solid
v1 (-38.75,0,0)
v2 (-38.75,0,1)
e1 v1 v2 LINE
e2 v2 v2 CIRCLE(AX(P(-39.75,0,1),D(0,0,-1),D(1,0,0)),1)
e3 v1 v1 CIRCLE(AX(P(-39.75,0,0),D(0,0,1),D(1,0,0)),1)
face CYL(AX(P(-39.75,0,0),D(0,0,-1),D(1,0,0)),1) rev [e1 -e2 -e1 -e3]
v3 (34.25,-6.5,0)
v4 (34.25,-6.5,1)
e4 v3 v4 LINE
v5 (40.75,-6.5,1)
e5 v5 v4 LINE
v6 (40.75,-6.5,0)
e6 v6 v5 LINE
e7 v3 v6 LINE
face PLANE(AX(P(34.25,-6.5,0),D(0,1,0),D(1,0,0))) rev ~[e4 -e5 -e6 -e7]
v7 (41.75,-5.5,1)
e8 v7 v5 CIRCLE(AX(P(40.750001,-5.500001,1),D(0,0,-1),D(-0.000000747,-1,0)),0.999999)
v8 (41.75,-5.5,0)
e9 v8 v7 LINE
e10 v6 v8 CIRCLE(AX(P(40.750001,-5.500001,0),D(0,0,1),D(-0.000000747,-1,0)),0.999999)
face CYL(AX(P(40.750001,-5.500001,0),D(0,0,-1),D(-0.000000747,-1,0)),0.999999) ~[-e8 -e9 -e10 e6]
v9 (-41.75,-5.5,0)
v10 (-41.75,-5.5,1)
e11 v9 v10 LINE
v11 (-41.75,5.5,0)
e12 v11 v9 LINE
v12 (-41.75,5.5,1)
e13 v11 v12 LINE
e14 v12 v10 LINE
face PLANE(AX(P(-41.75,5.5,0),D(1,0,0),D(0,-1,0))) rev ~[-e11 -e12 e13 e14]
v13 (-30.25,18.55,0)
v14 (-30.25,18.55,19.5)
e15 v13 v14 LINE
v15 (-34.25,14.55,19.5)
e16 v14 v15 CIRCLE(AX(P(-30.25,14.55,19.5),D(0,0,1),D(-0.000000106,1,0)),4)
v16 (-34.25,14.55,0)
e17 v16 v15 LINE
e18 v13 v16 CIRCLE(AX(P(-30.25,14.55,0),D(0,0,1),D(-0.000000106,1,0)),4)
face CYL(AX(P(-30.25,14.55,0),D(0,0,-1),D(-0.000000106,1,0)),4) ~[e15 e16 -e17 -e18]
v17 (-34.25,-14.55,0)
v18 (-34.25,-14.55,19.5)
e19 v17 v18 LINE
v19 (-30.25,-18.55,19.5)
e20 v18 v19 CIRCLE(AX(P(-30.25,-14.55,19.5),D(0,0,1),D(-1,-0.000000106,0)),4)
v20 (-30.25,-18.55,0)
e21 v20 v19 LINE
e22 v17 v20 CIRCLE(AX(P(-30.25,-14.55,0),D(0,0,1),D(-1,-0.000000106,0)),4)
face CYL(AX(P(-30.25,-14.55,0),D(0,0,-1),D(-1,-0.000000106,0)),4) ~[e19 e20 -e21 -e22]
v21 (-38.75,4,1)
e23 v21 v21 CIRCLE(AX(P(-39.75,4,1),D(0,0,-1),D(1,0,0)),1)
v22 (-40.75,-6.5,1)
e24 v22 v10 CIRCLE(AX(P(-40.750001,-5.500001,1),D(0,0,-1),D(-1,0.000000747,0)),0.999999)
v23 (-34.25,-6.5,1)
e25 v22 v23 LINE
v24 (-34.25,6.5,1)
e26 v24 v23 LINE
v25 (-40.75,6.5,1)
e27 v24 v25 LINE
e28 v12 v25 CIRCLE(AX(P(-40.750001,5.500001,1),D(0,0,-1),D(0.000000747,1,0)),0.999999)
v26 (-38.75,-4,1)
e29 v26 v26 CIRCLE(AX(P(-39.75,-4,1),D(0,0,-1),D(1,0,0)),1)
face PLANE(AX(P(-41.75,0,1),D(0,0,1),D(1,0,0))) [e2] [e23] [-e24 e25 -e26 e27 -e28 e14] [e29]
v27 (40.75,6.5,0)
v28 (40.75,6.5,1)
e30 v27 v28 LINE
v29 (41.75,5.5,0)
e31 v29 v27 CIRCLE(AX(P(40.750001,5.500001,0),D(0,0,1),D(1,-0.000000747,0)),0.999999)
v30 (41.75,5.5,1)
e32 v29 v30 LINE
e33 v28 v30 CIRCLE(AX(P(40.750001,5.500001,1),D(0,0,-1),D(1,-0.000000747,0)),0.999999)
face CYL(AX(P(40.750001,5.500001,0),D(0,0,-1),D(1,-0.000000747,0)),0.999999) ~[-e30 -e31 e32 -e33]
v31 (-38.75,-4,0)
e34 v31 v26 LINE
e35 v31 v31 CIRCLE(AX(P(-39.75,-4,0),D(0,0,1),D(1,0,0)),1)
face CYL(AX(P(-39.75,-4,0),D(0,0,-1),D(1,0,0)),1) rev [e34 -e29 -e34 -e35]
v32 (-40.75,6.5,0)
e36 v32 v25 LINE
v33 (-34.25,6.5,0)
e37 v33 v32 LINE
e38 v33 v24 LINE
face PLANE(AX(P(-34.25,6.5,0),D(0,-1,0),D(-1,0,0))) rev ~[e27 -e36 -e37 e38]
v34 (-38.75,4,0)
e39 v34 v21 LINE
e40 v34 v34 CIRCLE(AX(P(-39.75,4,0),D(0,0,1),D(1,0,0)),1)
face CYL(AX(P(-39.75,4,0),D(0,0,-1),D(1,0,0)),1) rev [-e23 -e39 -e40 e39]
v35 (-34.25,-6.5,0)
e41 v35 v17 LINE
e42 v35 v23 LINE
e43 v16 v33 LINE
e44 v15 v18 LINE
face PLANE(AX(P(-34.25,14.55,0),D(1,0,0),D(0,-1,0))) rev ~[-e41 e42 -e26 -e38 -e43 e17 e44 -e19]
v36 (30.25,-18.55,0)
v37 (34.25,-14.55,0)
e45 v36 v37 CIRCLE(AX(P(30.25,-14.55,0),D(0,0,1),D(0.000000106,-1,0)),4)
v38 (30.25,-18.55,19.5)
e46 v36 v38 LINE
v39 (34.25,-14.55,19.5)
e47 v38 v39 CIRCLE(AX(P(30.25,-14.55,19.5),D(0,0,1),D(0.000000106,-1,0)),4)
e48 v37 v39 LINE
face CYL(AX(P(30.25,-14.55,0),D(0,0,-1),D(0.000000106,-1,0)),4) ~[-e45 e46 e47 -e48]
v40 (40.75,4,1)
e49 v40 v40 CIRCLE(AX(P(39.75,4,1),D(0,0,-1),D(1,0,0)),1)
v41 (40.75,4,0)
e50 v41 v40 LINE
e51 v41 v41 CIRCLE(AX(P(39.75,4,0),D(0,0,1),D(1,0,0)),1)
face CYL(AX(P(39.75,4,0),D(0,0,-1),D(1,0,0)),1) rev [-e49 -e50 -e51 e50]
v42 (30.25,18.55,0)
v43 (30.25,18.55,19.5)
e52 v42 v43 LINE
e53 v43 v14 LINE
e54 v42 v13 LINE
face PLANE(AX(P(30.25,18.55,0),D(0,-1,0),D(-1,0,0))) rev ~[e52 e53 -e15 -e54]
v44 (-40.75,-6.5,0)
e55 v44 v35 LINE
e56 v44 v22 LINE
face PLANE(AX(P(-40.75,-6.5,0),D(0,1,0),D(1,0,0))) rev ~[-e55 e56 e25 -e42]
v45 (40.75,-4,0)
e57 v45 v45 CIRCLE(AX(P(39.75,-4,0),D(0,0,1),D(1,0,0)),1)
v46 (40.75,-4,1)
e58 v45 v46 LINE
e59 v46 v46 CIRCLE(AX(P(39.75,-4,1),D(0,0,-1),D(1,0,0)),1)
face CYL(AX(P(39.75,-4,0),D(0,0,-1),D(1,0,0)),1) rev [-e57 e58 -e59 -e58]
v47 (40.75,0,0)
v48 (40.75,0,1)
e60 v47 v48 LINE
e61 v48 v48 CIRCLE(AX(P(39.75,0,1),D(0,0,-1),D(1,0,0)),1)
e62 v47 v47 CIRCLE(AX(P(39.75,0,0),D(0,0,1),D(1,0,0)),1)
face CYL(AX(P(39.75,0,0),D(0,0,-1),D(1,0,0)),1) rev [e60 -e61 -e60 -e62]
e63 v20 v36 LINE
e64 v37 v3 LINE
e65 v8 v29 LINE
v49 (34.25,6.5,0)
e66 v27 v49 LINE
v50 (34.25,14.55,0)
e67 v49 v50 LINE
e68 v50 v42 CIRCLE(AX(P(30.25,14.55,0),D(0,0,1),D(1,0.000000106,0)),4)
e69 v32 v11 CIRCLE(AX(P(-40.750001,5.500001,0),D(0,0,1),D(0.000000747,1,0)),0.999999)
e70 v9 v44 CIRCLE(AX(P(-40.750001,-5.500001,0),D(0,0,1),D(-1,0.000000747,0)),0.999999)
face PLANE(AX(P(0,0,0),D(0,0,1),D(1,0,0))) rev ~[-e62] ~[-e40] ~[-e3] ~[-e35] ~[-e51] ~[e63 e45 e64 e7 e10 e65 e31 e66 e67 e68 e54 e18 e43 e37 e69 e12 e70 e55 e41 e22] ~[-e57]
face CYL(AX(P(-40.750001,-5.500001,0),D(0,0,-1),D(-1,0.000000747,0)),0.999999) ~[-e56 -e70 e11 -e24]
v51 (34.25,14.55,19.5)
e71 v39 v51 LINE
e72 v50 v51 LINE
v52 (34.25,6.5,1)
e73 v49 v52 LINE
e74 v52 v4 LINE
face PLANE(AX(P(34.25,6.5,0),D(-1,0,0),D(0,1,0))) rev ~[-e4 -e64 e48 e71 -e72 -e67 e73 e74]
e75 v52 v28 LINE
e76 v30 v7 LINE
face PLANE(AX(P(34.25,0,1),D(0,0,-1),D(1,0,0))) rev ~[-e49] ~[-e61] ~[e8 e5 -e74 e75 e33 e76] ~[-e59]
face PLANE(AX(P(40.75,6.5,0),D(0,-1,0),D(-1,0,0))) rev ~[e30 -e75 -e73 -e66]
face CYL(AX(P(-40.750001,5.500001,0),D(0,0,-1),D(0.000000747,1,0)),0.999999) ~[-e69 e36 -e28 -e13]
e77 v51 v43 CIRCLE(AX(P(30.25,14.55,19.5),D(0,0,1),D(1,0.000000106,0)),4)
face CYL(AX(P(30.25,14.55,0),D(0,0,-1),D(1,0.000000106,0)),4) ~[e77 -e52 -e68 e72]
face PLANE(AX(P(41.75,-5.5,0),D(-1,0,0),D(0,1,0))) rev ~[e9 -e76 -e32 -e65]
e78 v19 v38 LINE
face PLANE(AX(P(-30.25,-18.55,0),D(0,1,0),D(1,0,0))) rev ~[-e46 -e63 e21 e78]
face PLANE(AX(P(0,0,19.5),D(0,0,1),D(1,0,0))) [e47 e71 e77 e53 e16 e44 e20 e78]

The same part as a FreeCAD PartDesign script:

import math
import FreeCAD as App
import Part
import Sketcher
Q = App.Units.Quantity


def add_polygon(sketch, points):
    """Adds a closed chain of lines whose ends are joined by coincident constraints."""
    first, n = sketch.GeometryCount, len(points)
    for a, b in zip(points, points[1:] + points[:1]):
        sketch.addGeometry(Part.LineSegment(App.Vector(*a, 0), App.Vector(*b, 0)), False)
    for i in range(n):
        sketch.addConstraint(Sketcher.Constraint("Coincident", first + i, 2, first + (i + 1) % n, 1))

doc = App.newDocument("Part")
body = doc.addObject("PartDesign::Body", "Body")

sketch1 = doc.addObject("Sketcher::SketchObject", "Sketch")
body.addObject(sketch1)
sketch1.AttachmentSupport = (doc.XY_Plane, [""])
sketch1.MapMode = "FlatFace"
sketch1.addGeometry(Part.LineSegment(App.Vector(30.2, 18.6, 0), App.Vector(-30.2, 18.6, 0)), False)
sketch1.addGeometry(Part.ArcOfCircle(Part.Circle(App.Vector(-30.2, 14.5, 0), App.Vector(0, 0, 1), 4), math.radians(90), math.radians(180)), False)
sketch1.addGeometry(Part.LineSegment(App.Vector(-34.2, 14.6, 0), App.Vector(-34.2, 6.5, 0)), False)
sketch1.addGeometry(Part.LineSegment(App.Vector(-34.2, 6.5, 0), App.Vector(-40.8, 6.5, 0)), False)
sketch1.addGeometry(Part.ArcOfCircle(Part.Circle(App.Vector(-40.8, 5.5, 0), App.Vector(0, 0, 1), 1), math.radians(90), math.radians(180)), False)
sketch1.addGeometry(Part.LineSegment(App.Vector(-41.8, 5.5, 0), App.Vector(-41.8, -5.5, 0)), False)
sketch1.addGeometry(Part.ArcOfCircle(Part.Circle(App.Vector(-40.8, -5.5, 0), App.Vector(0, 0, 1), 1), math.radians(180), math.radians(270)), False)
sketch1.addGeometry(Part.LineSegment(App.Vector(-40.8, -6.5, 0), App.Vector(-34.2, -6.5, 0)), False)
sketch1.addGeometry(Part.LineSegment(App.Vector(-34.2, -6.5, 0), App.Vector(-34.2, -14.6, 0)), False)
sketch1.addGeometry(Part.ArcOfCircle(Part.Circle(App.Vector(-30.2, -14.5, 0), App.Vector(0, 0, 1), 4), math.radians(-180), math.radians(-90)), False)
sketch1.addGeometry(Part.LineSegment(App.Vector(-30.2, -18.6, 0), App.Vector(30.2, -18.6, 0)), False)
sketch1.addGeometry(Part.ArcOfCircle(Part.Circle(App.Vector(30.2, -14.5, 0), App.Vector(0, 0, 1), 4), math.radians(-90), math.radians(0)), False)
sketch1.addGeometry(Part.LineSegment(App.Vector(34.2, -14.6, 0), App.Vector(34.2, -6.5, 0)), False)
sketch1.addGeometry(Part.LineSegment(App.Vector(34.2, -6.5, 0), App.Vector(40.8, -6.5, 0)), False)
sketch1.addGeometry(Part.ArcOfCircle(Part.Circle(App.Vector(40.8, -5.5, 0), App.Vector(0, 0, 1), 1), math.radians(-90), math.radians(0)), False)
sketch1.addGeometry(Part.LineSegment(App.Vector(41.8, -5.5, 0), App.Vector(41.8, 5.5, 0)), False)
sketch1.addGeometry(Part.ArcOfCircle(Part.Circle(App.Vector(40.8, 5.5, 0), App.Vector(0, 0, 1), 1), math.radians(0), math.radians(90)), False)
sketch1.addGeometry(Part.LineSegment(App.Vector(40.8, 6.5, 0), App.Vector(34.2, 6.5, 0)), False)
sketch1.addGeometry(Part.LineSegment(App.Vector(34.2, 6.5, 0), App.Vector(34.2, 14.6, 0)), False)
sketch1.addGeometry(Part.ArcOfCircle(Part.Circle(App.Vector(30.2, 14.5, 0), App.Vector(0, 0, 1), 4), math.radians(0), math.radians(90)), False)
sketch1.addGeometry(Part.Circle(App.Vector(-39.8, -4, 0), App.Vector(0, 0, 1), 1), False)
sketch1.addGeometry(Part.Circle(App.Vector(39.8, -4, 0), App.Vector(0, 0, 1), 1), False)
sketch1.addGeometry(Part.Circle(App.Vector(-39.8, 0, 0), App.Vector(0, 0, 1), 1), False)
sketch1.addGeometry(Part.Circle(App.Vector(-39.8, 4, 0), App.Vector(0, 0, 1), 1), False)
sketch1.addGeometry(Part.Circle(App.Vector(39.8, 0, 0), App.Vector(0, 0, 1), 1), False)
sketch1.addGeometry(Part.Circle(App.Vector(39.8, 4, 0), App.Vector(0, 0, 1), 1), False)
sketch1.addConstraint(Sketcher.Constraint("Tangent", 0, 2, 1, 1))
sketch1.addConstraint(Sketcher.Constraint("Tangent", 1, 2, 2, 1))
sketch1.addConstraint(Sketcher.Constraint("Coincident", 2, 2, 3, 1))
sketch1.addConstraint(Sketcher.Constraint("Tangent", 3, 2, 4, 1))
sketch1.addConstraint(Sketcher.Constraint("Tangent", 4, 2, 5, 1))
sketch1.addConstraint(Sketcher.Constraint("Tangent", 5, 2, 6, 1))
sketch1.addConstraint(Sketcher.Constraint("Tangent", 6, 2, 7, 1))
sketch1.addConstraint(Sketcher.Constraint("Coincident", 7, 2, 8, 1))
sketch1.addConstraint(Sketcher.Constraint("Tangent", 8, 2, 9, 1))
sketch1.addConstraint(Sketcher.Constraint("Tangent", 9, 2, 10, 1))
sketch1.addConstraint(Sketcher.Constraint("Tangent", 10, 2, 11, 1))
sketch1.addConstraint(Sketcher.Constraint("Tangent", 11, 2, 12, 1))
sketch1.addConstraint(Sketcher.Constraint("Coincident", 12, 2, 13, 1))
sketch1.addConstraint(Sketcher.Constraint("Tangent", 13, 2, 14, 1))
sketch1.addConstraint(Sketcher.Constraint("Tangent", 14, 2, 15, 1))
sketch1.addConstraint(Sketcher.Constraint("Tangent", 15, 2, 16, 1))
sketch1.addConstraint(Sketcher.Constraint("Tangent", 16, 2, 17, 1))
sketch1.addConstraint(Sketcher.Constraint("Coincident", 17, 2, 18, 1))
sketch1.addConstraint(Sketcher.Constraint("Tangent", 18, 2, 19, 1))
sketch1.addConstraint(Sketcher.Constraint("Tangent", 19, 2, 0, 1))
sketch1.addConstraint(Sketcher.Constraint("Horizontal", 0))
sketch1.addConstraint(Sketcher.Constraint("Vertical", 2))
sketch1.addConstraint(Sketcher.Constraint("Horizontal", 3))
sketch1.addConstraint(Sketcher.Constraint("Vertical", 5))
sketch1.addConstraint(Sketcher.Constraint("Horizontal", 7))
sketch1.addConstraint(Sketcher.Constraint("Vertical", 8))
sketch1.addConstraint(Sketcher.Constraint("Horizontal", 10))
sketch1.addConstraint(Sketcher.Constraint("Vertical", 12))
sketch1.addConstraint(Sketcher.Constraint("Horizontal", 13))
sketch1.addConstraint(Sketcher.Constraint("Vertical", 15))
sketch1.addConstraint(Sketcher.Constraint("Horizontal", 17))
sketch1.addConstraint(Sketcher.Constraint("Vertical", 18))
sketch1.addConstraint(Sketcher.Constraint("Equal", 4, 6))
sketch1.addConstraint(Sketcher.Constraint("Equal", 1, 9))
sketch1.addConstraint(Sketcher.Constraint("Equal", 9, 11))
sketch1.addConstraint(Sketcher.Constraint("Equal", 6, 14))
sketch1.addConstraint(Sketcher.Constraint("Equal", 14, 16))
sketch1.addConstraint(Sketcher.Constraint("Equal", 11, 19))
sketch1.addConstraint(Sketcher.Constraint("Equal", 16, 20))
sketch1.addConstraint(Sketcher.Constraint("Equal", 20, 21))
sketch1.addConstraint(Sketcher.Constraint("Equal", 21, 22))
sketch1.addConstraint(Sketcher.Constraint("Equal", 22, 23))
sketch1.addConstraint(Sketcher.Constraint("Equal", 23, 24))
sketch1.addConstraint(Sketcher.Constraint("Equal", 24, 25))
sketch1.addConstraint(Sketcher.Constraint("Symmetric", 1, 3, 11, 3, -1, 1))
sketch1.addConstraint(Sketcher.Constraint("Symmetric", 4, 3, 14, 3, -1, 1))
sketch1.addConstraint(Sketcher.Constraint("Symmetric", 21, 3, 23, 3, -1, 1))
sketch1.addConstraint(Sketcher.Constraint("Symmetric", 22, 3, 24, 3, -1, 1))
sketch1.addConstraint(Sketcher.Constraint("Symmetric", 20, 3, 25, 3, -1, 1))
sketch1.addConstraint(Sketcher.Constraint("Symmetric", 7, 2, 17, 2, -1, 1))
sketch1.addConstraint(Sketcher.Constraint("Symmetric", 20, 3, 21, 3, -2))
sketch1.addConstraint(Sketcher.Constraint("Symmetric", 7, 2, 12, 2, -2))
sketch1.addConstraint(Sketcher.Constraint("PointOnObject", 22, 3, -1))
sketch1.addConstraint(Sketcher.Constraint("Vertical", 20, 3, 22, 3))
sketch1.addConstraint(Sketcher.Constraint("Diameter", 20, Q("2 mm")))
sketch1.addConstraint(Sketcher.Constraint("Radius", 1, Q("4 mm")))
sketch1.addConstraint(Sketcher.Constraint("DistanceY", 5, 2, 5, 1, Q("11 mm")))
sketch1.addConstraint(Sketcher.Constraint("DistanceX", 0, 2, 0, 1, Q("60.5 mm")))
sketch1.addConstraint(Sketcher.Constraint("DistanceX", 3, 2, 3, 1, Q("6.5 mm")))
sketch1.addConstraint(Sketcher.Constraint("DistanceY", 20, 3, -1, 1, Q("4 mm")))
sketch1.addConstraint(Sketcher.Constraint("DistanceX", 6, 3, 20, 3, Q("1.000001 mm")))
sketch1.addConstraint(Sketcher.Constraint("DistanceY", 2, 2, 2, 1, Q("8.05 mm")))
pad1 = doc.addObject("PartDesign::Pad", "Pad")
body.addObject(pad1)
pad1.Profile = sketch1
pad1.Length = 19.5

sketch2 = doc.addObject("Sketcher::SketchObject", "Sketch001")
body.addObject(sketch2)
sketch2.AttachmentSupport = (doc.XZ_Plane, [""])
sketch2.MapMode = "FlatFace"
add_polygon(sketch2, [(-42, 20), (-42, 1), (-34, 1), (-34, 20)])
add_polygon(sketch2, [(34, 20), (34, 1), (42, 1), (42, 20)])
sketch2.addConstraint(Sketcher.Constraint("Vertical", 0))
sketch2.addConstraint(Sketcher.Constraint("Horizontal", 1))
sketch2.addConstraint(Sketcher.Constraint("Vertical", 2))
sketch2.addConstraint(Sketcher.Constraint("Horizontal", 3))
sketch2.addConstraint(Sketcher.Constraint("Vertical", 4))
sketch2.addConstraint(Sketcher.Constraint("Horizontal", 5))
sketch2.addConstraint(Sketcher.Constraint("Vertical", 6))
sketch2.addConstraint(Sketcher.Constraint("Horizontal", 7))
sketch2.addConstraint(Sketcher.Constraint("Symmetric", 1, 2, 4, 2, -2))
sketch2.addConstraint(Sketcher.Constraint("Symmetric", 3, 2, 6, 2, -2))
sketch2.addConstraint(Sketcher.Constraint("DistanceX", 1, 1, 1, 2, Q("7.5 mm")))
sketch2.addConstraint(Sketcher.Constraint("DistanceY", 0, 2, 0, 1, Q("18.5 mm")))
sketch2.addConstraint(Sketcher.Constraint("DistanceY", -1, 1, 0, 2, Q("1 mm")))
sketch2.addConstraint(Sketcher.Constraint("DistanceX", 0, 2, 4, 2, Q("76 mm")))
pocket1 = doc.addObject("PartDesign::Pocket", "Pocket")
body.addObject(pocket1)
pocket1.Profile = sketch2
pocket1.Length = 25
pocket1.Midplane = True

doc.recompute()
